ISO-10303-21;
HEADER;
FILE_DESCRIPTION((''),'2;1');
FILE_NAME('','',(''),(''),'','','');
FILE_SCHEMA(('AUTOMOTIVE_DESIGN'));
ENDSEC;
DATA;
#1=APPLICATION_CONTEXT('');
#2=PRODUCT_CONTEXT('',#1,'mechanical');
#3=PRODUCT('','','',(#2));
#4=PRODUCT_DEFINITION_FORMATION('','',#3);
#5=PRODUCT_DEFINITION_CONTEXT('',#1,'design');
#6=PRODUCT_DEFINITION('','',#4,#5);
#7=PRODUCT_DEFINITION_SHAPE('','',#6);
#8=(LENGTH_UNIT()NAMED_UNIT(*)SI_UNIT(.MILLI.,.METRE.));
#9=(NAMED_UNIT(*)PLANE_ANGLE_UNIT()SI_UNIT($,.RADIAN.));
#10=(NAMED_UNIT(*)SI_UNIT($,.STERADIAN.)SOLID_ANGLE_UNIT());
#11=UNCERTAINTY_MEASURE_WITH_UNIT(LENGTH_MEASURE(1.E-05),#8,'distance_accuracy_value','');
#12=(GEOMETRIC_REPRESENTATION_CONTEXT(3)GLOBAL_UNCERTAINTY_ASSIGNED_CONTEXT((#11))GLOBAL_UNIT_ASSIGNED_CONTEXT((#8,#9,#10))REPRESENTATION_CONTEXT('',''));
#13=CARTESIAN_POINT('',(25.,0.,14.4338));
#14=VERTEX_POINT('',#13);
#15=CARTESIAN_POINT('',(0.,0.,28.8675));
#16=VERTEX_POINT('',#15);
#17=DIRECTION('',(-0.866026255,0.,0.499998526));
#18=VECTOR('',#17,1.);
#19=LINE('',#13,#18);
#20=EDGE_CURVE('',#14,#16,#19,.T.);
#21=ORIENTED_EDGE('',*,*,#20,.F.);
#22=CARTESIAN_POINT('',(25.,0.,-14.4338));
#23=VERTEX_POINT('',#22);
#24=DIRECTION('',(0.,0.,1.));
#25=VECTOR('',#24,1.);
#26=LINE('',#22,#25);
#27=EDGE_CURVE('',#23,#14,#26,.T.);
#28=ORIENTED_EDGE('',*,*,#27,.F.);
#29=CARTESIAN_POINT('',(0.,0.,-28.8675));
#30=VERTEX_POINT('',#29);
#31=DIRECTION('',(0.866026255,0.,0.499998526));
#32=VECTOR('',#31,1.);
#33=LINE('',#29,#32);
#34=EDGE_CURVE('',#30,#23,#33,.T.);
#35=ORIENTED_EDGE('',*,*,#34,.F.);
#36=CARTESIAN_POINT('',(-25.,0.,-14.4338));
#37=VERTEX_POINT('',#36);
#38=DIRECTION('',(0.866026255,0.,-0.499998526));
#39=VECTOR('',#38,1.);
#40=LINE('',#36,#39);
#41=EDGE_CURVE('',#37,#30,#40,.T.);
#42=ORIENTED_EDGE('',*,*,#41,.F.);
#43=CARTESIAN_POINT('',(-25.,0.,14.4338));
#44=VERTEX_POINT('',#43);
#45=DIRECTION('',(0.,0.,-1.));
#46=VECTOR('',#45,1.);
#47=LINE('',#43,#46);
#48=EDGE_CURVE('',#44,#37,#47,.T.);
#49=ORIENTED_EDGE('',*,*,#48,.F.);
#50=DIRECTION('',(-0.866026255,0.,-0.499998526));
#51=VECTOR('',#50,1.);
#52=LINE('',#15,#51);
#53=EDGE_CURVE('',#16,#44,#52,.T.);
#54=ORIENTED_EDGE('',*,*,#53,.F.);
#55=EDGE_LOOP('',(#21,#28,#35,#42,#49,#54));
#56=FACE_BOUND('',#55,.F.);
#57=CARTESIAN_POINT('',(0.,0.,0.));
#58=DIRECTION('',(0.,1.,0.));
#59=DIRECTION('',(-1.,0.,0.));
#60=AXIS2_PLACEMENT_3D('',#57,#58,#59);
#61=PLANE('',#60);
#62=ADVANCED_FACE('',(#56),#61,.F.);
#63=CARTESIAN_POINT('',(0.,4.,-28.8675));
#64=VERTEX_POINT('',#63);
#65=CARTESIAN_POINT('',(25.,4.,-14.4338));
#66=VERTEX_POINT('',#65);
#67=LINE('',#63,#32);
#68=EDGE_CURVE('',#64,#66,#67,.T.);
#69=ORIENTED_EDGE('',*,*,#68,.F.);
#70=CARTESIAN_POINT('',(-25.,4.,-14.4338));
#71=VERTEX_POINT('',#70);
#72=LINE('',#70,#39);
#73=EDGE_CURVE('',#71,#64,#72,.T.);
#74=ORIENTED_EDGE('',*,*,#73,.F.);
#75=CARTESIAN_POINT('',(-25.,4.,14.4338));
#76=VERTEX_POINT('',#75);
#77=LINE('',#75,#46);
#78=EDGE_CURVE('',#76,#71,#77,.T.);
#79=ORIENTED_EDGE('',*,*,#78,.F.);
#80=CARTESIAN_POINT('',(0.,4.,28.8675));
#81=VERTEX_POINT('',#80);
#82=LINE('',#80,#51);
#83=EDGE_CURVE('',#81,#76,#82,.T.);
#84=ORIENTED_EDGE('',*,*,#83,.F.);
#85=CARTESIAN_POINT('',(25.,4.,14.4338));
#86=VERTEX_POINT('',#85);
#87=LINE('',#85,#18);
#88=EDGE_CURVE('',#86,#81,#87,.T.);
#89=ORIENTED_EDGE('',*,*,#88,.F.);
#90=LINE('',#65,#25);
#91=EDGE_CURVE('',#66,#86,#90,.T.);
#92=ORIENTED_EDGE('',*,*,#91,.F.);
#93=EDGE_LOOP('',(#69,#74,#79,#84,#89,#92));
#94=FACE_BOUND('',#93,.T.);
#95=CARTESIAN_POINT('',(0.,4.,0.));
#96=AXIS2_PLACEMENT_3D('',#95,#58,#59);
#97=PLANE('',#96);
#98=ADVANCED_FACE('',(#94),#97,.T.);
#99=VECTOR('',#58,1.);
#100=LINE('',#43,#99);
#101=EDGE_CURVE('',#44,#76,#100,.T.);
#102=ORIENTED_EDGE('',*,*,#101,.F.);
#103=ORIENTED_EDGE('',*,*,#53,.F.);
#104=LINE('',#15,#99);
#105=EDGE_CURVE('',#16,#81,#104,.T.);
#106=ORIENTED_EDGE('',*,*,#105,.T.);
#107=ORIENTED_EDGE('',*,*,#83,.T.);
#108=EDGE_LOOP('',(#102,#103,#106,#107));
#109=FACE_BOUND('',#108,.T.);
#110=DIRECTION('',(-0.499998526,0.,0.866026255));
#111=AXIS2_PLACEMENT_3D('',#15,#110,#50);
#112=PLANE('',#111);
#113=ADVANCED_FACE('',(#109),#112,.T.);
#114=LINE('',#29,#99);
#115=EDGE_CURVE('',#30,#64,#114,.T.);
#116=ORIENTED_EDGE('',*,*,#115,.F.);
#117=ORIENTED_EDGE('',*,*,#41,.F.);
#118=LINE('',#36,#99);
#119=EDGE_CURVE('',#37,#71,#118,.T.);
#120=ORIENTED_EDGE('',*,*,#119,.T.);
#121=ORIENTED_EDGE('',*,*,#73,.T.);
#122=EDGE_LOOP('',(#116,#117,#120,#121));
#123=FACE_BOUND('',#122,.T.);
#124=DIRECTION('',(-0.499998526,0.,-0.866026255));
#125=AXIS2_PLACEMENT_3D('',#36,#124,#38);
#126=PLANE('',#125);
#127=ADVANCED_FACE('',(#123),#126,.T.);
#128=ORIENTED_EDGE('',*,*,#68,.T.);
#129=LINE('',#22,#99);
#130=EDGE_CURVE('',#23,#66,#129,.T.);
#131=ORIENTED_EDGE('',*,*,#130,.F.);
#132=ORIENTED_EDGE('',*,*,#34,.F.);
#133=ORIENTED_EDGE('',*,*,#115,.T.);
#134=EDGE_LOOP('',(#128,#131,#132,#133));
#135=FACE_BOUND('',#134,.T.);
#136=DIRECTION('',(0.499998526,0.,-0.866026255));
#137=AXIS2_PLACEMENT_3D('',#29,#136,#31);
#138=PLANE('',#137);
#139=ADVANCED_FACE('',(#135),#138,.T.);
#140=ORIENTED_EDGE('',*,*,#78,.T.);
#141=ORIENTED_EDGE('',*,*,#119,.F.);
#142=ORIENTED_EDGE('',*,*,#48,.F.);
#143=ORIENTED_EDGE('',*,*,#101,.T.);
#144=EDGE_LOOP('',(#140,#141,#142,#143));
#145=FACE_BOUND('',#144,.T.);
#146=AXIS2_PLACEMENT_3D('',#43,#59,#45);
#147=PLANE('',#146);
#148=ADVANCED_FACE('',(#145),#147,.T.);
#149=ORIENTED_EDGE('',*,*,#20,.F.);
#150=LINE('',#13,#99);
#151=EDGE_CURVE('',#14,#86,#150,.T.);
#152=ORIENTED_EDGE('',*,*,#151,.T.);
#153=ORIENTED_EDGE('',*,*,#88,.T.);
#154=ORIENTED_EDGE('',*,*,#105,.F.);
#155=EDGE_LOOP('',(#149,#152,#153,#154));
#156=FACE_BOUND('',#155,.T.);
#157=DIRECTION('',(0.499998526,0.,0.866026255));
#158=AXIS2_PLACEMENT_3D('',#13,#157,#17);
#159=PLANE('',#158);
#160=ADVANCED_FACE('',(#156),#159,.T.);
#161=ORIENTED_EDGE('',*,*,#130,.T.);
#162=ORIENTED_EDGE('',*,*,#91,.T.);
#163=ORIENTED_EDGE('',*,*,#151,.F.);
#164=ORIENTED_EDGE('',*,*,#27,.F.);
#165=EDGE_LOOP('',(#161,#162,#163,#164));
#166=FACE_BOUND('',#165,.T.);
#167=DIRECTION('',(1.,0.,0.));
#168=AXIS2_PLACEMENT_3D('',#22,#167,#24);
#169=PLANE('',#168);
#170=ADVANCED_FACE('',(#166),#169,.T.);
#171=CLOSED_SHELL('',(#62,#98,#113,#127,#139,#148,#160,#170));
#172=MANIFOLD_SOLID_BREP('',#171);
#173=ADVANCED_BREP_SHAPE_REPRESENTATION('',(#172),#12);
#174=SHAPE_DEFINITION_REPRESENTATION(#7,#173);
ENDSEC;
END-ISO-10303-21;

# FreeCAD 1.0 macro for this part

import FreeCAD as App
import Part
import Sketcher
from FreeCAD import Vector
Q = App.Units.Quantity

doc = App.newDocument("Part")
params = doc.addObject("Spreadsheet::Sheet", "Params")
for row, (alias, value) in enumerate([
    ("pad1_length", "4 mm"),
], start=1):
    params.set(f"A{row}", alias)
    params.set(f"B{row}", "=" + value)
    params.setAlias(f"B{row}", alias)

body = doc.addObject("PartDesign::Body", "Body")

sketch1 = body.newObject("Sketcher::SketchObject", "Sketch")
sketch1.AttachmentSupport = (doc.getObject("XZ_Plane"), [""])
sketch1.MapMode = "FlatFace"
sketch1.addGeometry(Part.LineSegment(Vector(0, -28.8675, 0), Vector(-25, -14.4338, 0)), False)
sketch1.addGeometry(Part.LineSegment(Vector(-25, -14.4338, 0), Vector(-25, 14.4338, 0)), False)
sketch1.addGeometry(Part.LineSegment(Vector(-25, 14.4338, 0), Vector(0, 28.8675, 0)), False)
sketch1.addGeometry(Part.LineSegment(Vector(0, 28.8675, 0), Vector(25, 14.4338, 0)), False)
sketch1.addGeometry(Part.LineSegment(Vector(25, 14.4338, 0), Vector(25, -14.4338, 0)), False)
sketch1.addGeometry(Part.LineSegment(Vector(25, -14.4338, 0), Vector(0, -28.8675, 0)), False)
sketch1.addConstraint(Sketcher.Constraint("Coincident", 0, 2, 1, 1))
sketch1.addConstraint(Sketcher.Constraint("Coincident", 1, 2, 2, 1))
sketch1.addConstraint(Sketcher.Constraint("Coincident", 2, 2, 3, 1))
sketch1.addConstraint(Sketcher.Constraint("Coincident", 3, 2, 4, 1))
sketch1.addConstraint(Sketcher.Constraint("Coincident", 4, 2, 5, 1))
sketch1.addConstraint(Sketcher.Constraint("Coincident", 5, 2, 0, 1))
sketch1.addConstraint(Sketcher.Constraint("Vertical", 1))
sketch1.addConstraint(Sketcher.Constraint("Vertical", 4))
sketch1.addConstraint(Sketcher.Constraint("Symmetric", 0, 2, 3, 2, -1, 1))
sketch1.addConstraint(Sketcher.Constraint("Symmetric", 2, 2, 5, 2, -1, 1))
sketch1.addConstraint(Sketcher.Constraint("PointOnObject", 2, 2, -2))
sketch1.addConstraint(Sketcher.Constraint("Parallel", 2, 5))
sketch1.addConstraint(Sketcher.Constraint("Horizontal", 1, 2, 3, 2))
sketch1.addConstraint(Sketcher.Constraint("DistanceX", 1, 2, 3, 2, Q("50 mm")))
sketch1.addConstraint(Sketcher.Constraint("Angle", 0, Q("150 deg")))
sketch1.addConstraint(Sketcher.Constraint("DistanceY", 1, 1, 1, 2, Q("28.8676 mm")))
pad1 = body.newObject("PartDesign::Pad", "Pad")
pad1.Profile = sketch1
pad1.setExpression("Length", "Params.pad1_length")
pad1.Reversed = True

doc.recompute()
